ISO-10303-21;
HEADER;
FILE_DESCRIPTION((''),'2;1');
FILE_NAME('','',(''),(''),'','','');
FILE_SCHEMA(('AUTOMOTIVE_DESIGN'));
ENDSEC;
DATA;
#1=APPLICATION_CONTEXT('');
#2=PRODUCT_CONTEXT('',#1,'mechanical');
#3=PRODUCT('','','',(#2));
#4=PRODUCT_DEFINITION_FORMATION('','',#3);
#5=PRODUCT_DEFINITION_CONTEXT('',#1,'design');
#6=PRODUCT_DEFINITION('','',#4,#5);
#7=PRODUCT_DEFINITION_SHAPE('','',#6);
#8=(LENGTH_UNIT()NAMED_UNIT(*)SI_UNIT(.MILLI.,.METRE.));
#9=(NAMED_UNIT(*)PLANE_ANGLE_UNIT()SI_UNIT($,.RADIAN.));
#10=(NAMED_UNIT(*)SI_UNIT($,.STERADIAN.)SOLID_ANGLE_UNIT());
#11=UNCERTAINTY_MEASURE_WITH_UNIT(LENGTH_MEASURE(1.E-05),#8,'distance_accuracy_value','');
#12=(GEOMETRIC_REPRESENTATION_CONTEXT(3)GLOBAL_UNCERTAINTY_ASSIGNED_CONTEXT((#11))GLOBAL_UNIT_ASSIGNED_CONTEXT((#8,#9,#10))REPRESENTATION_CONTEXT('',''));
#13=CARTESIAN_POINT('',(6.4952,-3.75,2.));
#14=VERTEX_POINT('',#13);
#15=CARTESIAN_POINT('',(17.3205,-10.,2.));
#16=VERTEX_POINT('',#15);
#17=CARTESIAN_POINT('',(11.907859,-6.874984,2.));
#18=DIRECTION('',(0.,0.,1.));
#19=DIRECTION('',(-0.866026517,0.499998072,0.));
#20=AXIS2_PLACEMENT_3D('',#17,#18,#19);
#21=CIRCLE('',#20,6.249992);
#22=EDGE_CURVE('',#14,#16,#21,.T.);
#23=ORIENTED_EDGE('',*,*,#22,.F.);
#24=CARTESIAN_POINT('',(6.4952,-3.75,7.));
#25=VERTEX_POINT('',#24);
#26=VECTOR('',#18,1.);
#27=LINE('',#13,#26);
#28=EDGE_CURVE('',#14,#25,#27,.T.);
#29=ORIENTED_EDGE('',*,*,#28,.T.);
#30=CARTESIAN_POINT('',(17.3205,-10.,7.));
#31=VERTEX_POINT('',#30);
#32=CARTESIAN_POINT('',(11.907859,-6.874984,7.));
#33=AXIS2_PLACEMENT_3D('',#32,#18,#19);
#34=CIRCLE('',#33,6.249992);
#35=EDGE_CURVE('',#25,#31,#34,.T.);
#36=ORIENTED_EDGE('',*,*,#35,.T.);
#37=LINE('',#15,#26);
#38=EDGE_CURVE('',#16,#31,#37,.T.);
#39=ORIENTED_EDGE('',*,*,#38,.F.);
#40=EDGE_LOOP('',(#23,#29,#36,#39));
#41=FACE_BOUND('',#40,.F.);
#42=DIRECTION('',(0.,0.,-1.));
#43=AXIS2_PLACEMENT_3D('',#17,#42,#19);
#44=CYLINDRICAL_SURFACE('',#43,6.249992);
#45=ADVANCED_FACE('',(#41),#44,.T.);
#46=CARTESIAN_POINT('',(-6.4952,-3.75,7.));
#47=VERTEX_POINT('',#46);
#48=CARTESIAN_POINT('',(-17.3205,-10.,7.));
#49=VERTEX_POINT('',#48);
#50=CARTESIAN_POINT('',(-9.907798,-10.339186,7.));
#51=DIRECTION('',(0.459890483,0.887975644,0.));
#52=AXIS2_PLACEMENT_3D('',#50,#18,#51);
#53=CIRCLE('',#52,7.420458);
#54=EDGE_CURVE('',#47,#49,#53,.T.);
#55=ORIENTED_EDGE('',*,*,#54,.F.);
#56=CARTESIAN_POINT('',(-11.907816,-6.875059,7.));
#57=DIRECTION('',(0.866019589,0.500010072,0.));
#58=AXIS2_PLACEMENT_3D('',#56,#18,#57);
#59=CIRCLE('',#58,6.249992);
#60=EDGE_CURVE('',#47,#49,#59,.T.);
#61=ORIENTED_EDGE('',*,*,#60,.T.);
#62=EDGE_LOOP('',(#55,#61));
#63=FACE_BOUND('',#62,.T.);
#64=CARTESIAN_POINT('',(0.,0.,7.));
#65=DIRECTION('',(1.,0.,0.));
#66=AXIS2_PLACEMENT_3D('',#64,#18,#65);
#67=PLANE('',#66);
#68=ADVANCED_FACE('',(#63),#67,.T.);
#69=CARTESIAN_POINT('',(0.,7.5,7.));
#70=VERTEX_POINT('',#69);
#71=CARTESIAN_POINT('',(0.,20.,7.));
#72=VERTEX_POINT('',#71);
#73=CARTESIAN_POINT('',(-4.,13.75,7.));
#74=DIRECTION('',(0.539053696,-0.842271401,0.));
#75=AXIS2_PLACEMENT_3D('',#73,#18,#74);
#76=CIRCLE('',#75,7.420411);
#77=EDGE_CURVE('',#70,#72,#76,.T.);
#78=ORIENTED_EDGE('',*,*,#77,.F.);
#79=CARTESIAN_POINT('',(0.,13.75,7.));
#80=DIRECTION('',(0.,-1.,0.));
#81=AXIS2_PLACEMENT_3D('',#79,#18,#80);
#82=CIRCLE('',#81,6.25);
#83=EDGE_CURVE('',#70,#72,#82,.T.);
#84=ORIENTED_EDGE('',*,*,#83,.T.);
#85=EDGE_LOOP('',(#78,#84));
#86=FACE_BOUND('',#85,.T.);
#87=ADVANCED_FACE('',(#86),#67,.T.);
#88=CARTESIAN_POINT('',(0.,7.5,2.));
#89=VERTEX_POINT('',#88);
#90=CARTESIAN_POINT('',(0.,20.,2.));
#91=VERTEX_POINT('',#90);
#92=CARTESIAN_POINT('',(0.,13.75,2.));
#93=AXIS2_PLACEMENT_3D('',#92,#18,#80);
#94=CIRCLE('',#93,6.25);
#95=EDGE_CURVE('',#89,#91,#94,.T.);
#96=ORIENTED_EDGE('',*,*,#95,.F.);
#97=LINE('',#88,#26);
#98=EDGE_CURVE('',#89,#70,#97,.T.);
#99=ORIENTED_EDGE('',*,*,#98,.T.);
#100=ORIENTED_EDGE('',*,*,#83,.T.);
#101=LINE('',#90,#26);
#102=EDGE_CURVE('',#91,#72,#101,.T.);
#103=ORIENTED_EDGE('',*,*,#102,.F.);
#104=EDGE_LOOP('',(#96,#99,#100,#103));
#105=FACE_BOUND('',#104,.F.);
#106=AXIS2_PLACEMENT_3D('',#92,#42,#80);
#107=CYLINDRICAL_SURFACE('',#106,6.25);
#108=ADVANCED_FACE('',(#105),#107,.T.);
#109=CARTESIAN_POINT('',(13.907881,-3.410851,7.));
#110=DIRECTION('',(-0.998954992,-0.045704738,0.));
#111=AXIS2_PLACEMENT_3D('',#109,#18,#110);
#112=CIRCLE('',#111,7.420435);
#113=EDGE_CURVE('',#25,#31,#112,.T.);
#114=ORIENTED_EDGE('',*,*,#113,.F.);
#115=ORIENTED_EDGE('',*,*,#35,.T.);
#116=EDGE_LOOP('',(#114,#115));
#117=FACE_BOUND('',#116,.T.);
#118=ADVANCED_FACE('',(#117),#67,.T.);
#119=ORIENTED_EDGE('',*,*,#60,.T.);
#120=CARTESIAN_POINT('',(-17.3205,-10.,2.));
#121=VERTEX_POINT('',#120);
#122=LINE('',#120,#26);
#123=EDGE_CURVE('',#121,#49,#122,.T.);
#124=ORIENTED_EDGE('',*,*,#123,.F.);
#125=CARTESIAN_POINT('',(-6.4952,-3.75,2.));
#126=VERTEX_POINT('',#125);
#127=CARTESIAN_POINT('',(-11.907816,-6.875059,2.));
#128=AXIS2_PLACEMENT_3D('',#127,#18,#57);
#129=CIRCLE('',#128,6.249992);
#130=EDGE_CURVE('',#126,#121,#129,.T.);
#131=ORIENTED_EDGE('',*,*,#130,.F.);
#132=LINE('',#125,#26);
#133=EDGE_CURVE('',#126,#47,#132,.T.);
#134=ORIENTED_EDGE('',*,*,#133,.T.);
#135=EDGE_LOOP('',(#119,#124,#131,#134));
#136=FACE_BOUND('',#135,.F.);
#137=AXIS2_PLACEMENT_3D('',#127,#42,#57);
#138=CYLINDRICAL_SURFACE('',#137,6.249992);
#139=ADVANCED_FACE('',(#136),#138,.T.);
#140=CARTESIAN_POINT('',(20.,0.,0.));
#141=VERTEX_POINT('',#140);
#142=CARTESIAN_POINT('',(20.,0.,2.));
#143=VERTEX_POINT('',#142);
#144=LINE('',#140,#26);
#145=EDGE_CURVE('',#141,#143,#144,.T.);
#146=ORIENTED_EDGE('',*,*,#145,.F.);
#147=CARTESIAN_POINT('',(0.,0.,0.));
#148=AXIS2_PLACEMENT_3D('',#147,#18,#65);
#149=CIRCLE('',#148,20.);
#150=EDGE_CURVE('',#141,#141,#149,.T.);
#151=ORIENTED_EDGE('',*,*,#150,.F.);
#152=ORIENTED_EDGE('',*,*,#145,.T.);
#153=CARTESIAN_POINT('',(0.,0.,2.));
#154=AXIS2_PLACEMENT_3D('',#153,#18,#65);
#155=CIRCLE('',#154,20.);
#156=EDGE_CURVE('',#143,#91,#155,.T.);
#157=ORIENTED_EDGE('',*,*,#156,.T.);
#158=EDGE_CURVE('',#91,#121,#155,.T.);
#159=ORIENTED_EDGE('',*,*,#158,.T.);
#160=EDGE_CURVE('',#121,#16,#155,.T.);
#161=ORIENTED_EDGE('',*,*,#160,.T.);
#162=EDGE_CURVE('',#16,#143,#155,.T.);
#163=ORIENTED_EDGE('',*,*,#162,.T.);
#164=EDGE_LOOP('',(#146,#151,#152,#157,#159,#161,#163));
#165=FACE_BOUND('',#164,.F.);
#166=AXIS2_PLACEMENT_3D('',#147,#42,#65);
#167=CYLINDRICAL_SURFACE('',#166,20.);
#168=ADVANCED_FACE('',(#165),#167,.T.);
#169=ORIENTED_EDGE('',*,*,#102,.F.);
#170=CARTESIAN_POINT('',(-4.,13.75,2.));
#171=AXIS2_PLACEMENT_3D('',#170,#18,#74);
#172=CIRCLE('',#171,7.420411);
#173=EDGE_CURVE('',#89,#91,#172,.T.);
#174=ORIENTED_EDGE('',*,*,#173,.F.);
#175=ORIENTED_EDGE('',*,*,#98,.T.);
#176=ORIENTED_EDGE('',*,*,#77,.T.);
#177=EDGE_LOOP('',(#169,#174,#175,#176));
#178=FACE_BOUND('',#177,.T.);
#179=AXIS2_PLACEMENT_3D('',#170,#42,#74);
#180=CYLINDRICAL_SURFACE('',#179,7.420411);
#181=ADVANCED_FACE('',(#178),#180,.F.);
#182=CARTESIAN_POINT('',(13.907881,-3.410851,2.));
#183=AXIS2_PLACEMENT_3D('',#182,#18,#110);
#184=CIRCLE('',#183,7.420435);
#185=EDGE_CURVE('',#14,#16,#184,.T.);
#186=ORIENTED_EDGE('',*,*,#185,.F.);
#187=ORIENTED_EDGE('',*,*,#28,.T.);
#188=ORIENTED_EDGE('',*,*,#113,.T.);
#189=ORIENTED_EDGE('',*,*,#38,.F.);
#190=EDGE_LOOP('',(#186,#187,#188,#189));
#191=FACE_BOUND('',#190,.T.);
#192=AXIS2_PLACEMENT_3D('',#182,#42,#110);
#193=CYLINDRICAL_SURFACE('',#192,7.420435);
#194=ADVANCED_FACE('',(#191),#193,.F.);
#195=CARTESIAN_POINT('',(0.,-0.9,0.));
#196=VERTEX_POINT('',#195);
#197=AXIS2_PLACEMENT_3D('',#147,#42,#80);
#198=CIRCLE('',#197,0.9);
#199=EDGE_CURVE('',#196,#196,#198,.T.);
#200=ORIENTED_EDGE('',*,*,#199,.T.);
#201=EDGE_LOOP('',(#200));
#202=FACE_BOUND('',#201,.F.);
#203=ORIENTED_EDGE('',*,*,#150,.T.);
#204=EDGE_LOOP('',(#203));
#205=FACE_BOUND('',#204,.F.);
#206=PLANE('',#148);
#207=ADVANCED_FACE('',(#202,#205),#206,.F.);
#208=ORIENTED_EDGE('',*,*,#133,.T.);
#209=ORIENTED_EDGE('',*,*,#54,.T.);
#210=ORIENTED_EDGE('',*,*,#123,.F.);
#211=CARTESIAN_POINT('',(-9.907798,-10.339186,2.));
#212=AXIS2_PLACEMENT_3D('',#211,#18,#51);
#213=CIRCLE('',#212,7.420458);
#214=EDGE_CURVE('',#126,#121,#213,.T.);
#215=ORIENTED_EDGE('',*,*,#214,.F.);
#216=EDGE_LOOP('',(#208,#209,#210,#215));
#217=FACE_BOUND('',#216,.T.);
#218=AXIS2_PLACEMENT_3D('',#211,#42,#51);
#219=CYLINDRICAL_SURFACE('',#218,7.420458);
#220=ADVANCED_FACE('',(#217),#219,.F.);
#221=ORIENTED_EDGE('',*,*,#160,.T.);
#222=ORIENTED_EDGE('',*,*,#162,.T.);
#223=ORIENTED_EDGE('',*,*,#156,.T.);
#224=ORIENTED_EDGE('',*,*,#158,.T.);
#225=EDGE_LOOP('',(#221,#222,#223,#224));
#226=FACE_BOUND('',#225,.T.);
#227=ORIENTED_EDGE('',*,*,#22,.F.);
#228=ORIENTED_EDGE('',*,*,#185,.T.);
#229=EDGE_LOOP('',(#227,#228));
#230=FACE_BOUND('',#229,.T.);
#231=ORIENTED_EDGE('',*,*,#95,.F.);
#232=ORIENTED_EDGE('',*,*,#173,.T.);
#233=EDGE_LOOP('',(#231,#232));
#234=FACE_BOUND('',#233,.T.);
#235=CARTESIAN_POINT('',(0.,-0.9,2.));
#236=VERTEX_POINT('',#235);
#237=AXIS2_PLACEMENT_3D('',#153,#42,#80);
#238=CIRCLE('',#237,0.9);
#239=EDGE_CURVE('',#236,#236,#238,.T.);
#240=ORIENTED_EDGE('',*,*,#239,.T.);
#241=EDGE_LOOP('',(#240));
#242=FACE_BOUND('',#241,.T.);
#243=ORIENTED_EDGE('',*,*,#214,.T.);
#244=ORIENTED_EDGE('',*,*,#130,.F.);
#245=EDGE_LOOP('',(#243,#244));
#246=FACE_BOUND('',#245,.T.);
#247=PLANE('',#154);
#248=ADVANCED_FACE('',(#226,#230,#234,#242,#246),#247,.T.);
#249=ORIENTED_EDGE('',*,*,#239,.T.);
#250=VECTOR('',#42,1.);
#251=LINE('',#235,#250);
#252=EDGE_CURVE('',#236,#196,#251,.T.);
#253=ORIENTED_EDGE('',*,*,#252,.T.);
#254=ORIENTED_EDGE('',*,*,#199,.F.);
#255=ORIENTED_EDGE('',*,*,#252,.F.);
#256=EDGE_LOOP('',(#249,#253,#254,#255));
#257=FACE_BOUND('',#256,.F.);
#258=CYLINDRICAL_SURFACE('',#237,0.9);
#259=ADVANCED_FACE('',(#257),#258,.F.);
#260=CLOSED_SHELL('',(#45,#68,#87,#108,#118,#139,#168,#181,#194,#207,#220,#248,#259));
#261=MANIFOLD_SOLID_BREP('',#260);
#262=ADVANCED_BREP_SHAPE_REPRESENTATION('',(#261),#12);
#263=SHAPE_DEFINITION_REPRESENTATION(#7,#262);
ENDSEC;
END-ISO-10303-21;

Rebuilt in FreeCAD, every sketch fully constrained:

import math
import FreeCAD as App
import Part
import Sketcher

V = App.Vector

doc = App.newDocument("Part")
body = doc.addObject("PartDesign::Body", "Body")

sketch1 = body.newObject("Sketcher::SketchObject", "Sketch")
sketch1.AttachmentSupport = (doc.getObject("XY_Plane"), [""])
sketch1.MapMode = "FlatFace"
sketch1.addGeometry(Part.Circle(V(0, 0, 0), V(0, 0, 1), 20), False)
sketch1.addConstraint([
    Sketcher.Constraint("Coincident", 0, 3, -1, 1),
    Sketcher.Constraint("Diameter", 0, 40.0),
])
pad1 = body.newObject("PartDesign::Pad", "Pad")
pad1.Profile = sketch1
pad1.Length = 2

sketch2 = body.newObject("Sketcher::SketchObject", "Sketch001")
sketch2.AttachmentSupport = (doc.getObject("XY_Plane"), [""])
sketch2.MapMode = "FlatFace"
sketch2.AttachmentOffset = App.Placement(V(0, 0, 2), App.Rotation())
sketch2.addGeometry([
    Part.ArcOfCircle(Part.Circle(V(-4, 14, 0), V(0, 0, 1), 7), math.radians(-57), math.radians(57)),
    Part.ArcOfCircle(Part.Circle(V(0, 14, 0), V(0, 0, 1), 6), math.radians(-90), math.radians(90)),
    Part.ArcOfCircle(Part.Circle(V(14, -3, 0), V(0, 0, 1), 7), math.radians(-177), math.radians(-63)),
    Part.ArcOfCircle(Part.Circle(V(12, -7, 0), V(0, 0, 1), 6), math.radians(150), math.radians(330)),
    Part.ArcOfCircle(Part.Circle(V(-10, -10, 0), V(0, 0, 1), 7), math.radians(63), math.radians(177)),
    Part.ArcOfCircle(Part.Circle(V(-12, -7, 0), V(0, 0, 1), 6), math.radians(30), math.radians(210)),
], False)
sketch2.addConstraint([
    Sketcher.Constraint("Coincident", 0, 1, 1, 1),
    Sketcher.Constraint("Coincident", 1, 2, 0, 2),
    Sketcher.Constraint("Coincident", 2, 1, 3, 1),
    Sketcher.Constraint("Coincident", 3, 2, 2, 2),
    Sketcher.Constraint("Coincident", 4, 1, 5, 1),
    Sketcher.Constraint("Coincident", 5, 2, 4, 2),
    Sketcher.Constraint("Equal", 0, 2),
    Sketcher.Constraint("Equal", 1, 3),
    Sketcher.Constraint("Equal", 2, 4),
    Sketcher.Constraint("Equal", 3, 5),
    Sketcher.Constraint("Symmetric", 3, 3, 5, 3, -2),
    Sketcher.Constraint("PointOnObject", 1, 3, -2),
    Sketcher.Constraint("PointOnObject", 0, 1, -2),
    Sketcher.Constraint("PointOnObject", 1, 2, -2),
    Sketcher.Constraint("Horizontal", 2, 1, 4, 1),
    Sketcher.Constraint("Horizontal", 3, 2, 5, 2),
    Sketcher.Constraint("DistanceX", 0, 3, -1, 1, 4.0),
    Sketcher.Constraint("Radius", 1, 6.25),
    Sketcher.Constraint("DistanceY", -1, 1, 1, 2, 20.0),
    Sketcher.Constraint("DistanceY", 3, 2, -1, 1, 10.0),
    Sketcher.Constraint("DistanceX", 3, 3, 2, 3, 2.0),
    Sketcher.Constraint("DistanceX", 5, 3, 4, 3, 2.0),
    Sketcher.Constraint("DistanceX", 4, 3, 2, 1, 16.403),
])
pad2 = body.newObject("PartDesign::Pad", "Pad001")
pad2.Profile = sketch2
pad2.Length = 5

sketch3 = body.newObject("Sketcher::SketchObject", "Sketch002")
sketch3.AttachmentSupport = (doc.getObject("XY_Plane"), [""])
sketch3.MapMode = "FlatFace"
sketch3.AttachmentOffset = App.Placement(V(0, 0, 2), App.Rotation())
sketch3.addGeometry(Part.Circle(V(0, 0, 0), V(0, 0, 1), 0.9), False)
sketch3.addConstraint([
    Sketcher.Constraint("Coincident", 0, 3, -1, 1),
    Sketcher.Constraint("Diameter", 0, 1.8),
])
doc.recompute()
hole = body.newObject("PartDesign::Hole", "Hole")
hole.Profile = sketch3
hole.ThreadType = "None"
hole.Diameter = 1.8
hole.DepthType = "Dimension"
hole.Depth = 8.8
hole.DrillPoint = "Angled"
hole.DrillPointAngle = 118

doc.recompute()
